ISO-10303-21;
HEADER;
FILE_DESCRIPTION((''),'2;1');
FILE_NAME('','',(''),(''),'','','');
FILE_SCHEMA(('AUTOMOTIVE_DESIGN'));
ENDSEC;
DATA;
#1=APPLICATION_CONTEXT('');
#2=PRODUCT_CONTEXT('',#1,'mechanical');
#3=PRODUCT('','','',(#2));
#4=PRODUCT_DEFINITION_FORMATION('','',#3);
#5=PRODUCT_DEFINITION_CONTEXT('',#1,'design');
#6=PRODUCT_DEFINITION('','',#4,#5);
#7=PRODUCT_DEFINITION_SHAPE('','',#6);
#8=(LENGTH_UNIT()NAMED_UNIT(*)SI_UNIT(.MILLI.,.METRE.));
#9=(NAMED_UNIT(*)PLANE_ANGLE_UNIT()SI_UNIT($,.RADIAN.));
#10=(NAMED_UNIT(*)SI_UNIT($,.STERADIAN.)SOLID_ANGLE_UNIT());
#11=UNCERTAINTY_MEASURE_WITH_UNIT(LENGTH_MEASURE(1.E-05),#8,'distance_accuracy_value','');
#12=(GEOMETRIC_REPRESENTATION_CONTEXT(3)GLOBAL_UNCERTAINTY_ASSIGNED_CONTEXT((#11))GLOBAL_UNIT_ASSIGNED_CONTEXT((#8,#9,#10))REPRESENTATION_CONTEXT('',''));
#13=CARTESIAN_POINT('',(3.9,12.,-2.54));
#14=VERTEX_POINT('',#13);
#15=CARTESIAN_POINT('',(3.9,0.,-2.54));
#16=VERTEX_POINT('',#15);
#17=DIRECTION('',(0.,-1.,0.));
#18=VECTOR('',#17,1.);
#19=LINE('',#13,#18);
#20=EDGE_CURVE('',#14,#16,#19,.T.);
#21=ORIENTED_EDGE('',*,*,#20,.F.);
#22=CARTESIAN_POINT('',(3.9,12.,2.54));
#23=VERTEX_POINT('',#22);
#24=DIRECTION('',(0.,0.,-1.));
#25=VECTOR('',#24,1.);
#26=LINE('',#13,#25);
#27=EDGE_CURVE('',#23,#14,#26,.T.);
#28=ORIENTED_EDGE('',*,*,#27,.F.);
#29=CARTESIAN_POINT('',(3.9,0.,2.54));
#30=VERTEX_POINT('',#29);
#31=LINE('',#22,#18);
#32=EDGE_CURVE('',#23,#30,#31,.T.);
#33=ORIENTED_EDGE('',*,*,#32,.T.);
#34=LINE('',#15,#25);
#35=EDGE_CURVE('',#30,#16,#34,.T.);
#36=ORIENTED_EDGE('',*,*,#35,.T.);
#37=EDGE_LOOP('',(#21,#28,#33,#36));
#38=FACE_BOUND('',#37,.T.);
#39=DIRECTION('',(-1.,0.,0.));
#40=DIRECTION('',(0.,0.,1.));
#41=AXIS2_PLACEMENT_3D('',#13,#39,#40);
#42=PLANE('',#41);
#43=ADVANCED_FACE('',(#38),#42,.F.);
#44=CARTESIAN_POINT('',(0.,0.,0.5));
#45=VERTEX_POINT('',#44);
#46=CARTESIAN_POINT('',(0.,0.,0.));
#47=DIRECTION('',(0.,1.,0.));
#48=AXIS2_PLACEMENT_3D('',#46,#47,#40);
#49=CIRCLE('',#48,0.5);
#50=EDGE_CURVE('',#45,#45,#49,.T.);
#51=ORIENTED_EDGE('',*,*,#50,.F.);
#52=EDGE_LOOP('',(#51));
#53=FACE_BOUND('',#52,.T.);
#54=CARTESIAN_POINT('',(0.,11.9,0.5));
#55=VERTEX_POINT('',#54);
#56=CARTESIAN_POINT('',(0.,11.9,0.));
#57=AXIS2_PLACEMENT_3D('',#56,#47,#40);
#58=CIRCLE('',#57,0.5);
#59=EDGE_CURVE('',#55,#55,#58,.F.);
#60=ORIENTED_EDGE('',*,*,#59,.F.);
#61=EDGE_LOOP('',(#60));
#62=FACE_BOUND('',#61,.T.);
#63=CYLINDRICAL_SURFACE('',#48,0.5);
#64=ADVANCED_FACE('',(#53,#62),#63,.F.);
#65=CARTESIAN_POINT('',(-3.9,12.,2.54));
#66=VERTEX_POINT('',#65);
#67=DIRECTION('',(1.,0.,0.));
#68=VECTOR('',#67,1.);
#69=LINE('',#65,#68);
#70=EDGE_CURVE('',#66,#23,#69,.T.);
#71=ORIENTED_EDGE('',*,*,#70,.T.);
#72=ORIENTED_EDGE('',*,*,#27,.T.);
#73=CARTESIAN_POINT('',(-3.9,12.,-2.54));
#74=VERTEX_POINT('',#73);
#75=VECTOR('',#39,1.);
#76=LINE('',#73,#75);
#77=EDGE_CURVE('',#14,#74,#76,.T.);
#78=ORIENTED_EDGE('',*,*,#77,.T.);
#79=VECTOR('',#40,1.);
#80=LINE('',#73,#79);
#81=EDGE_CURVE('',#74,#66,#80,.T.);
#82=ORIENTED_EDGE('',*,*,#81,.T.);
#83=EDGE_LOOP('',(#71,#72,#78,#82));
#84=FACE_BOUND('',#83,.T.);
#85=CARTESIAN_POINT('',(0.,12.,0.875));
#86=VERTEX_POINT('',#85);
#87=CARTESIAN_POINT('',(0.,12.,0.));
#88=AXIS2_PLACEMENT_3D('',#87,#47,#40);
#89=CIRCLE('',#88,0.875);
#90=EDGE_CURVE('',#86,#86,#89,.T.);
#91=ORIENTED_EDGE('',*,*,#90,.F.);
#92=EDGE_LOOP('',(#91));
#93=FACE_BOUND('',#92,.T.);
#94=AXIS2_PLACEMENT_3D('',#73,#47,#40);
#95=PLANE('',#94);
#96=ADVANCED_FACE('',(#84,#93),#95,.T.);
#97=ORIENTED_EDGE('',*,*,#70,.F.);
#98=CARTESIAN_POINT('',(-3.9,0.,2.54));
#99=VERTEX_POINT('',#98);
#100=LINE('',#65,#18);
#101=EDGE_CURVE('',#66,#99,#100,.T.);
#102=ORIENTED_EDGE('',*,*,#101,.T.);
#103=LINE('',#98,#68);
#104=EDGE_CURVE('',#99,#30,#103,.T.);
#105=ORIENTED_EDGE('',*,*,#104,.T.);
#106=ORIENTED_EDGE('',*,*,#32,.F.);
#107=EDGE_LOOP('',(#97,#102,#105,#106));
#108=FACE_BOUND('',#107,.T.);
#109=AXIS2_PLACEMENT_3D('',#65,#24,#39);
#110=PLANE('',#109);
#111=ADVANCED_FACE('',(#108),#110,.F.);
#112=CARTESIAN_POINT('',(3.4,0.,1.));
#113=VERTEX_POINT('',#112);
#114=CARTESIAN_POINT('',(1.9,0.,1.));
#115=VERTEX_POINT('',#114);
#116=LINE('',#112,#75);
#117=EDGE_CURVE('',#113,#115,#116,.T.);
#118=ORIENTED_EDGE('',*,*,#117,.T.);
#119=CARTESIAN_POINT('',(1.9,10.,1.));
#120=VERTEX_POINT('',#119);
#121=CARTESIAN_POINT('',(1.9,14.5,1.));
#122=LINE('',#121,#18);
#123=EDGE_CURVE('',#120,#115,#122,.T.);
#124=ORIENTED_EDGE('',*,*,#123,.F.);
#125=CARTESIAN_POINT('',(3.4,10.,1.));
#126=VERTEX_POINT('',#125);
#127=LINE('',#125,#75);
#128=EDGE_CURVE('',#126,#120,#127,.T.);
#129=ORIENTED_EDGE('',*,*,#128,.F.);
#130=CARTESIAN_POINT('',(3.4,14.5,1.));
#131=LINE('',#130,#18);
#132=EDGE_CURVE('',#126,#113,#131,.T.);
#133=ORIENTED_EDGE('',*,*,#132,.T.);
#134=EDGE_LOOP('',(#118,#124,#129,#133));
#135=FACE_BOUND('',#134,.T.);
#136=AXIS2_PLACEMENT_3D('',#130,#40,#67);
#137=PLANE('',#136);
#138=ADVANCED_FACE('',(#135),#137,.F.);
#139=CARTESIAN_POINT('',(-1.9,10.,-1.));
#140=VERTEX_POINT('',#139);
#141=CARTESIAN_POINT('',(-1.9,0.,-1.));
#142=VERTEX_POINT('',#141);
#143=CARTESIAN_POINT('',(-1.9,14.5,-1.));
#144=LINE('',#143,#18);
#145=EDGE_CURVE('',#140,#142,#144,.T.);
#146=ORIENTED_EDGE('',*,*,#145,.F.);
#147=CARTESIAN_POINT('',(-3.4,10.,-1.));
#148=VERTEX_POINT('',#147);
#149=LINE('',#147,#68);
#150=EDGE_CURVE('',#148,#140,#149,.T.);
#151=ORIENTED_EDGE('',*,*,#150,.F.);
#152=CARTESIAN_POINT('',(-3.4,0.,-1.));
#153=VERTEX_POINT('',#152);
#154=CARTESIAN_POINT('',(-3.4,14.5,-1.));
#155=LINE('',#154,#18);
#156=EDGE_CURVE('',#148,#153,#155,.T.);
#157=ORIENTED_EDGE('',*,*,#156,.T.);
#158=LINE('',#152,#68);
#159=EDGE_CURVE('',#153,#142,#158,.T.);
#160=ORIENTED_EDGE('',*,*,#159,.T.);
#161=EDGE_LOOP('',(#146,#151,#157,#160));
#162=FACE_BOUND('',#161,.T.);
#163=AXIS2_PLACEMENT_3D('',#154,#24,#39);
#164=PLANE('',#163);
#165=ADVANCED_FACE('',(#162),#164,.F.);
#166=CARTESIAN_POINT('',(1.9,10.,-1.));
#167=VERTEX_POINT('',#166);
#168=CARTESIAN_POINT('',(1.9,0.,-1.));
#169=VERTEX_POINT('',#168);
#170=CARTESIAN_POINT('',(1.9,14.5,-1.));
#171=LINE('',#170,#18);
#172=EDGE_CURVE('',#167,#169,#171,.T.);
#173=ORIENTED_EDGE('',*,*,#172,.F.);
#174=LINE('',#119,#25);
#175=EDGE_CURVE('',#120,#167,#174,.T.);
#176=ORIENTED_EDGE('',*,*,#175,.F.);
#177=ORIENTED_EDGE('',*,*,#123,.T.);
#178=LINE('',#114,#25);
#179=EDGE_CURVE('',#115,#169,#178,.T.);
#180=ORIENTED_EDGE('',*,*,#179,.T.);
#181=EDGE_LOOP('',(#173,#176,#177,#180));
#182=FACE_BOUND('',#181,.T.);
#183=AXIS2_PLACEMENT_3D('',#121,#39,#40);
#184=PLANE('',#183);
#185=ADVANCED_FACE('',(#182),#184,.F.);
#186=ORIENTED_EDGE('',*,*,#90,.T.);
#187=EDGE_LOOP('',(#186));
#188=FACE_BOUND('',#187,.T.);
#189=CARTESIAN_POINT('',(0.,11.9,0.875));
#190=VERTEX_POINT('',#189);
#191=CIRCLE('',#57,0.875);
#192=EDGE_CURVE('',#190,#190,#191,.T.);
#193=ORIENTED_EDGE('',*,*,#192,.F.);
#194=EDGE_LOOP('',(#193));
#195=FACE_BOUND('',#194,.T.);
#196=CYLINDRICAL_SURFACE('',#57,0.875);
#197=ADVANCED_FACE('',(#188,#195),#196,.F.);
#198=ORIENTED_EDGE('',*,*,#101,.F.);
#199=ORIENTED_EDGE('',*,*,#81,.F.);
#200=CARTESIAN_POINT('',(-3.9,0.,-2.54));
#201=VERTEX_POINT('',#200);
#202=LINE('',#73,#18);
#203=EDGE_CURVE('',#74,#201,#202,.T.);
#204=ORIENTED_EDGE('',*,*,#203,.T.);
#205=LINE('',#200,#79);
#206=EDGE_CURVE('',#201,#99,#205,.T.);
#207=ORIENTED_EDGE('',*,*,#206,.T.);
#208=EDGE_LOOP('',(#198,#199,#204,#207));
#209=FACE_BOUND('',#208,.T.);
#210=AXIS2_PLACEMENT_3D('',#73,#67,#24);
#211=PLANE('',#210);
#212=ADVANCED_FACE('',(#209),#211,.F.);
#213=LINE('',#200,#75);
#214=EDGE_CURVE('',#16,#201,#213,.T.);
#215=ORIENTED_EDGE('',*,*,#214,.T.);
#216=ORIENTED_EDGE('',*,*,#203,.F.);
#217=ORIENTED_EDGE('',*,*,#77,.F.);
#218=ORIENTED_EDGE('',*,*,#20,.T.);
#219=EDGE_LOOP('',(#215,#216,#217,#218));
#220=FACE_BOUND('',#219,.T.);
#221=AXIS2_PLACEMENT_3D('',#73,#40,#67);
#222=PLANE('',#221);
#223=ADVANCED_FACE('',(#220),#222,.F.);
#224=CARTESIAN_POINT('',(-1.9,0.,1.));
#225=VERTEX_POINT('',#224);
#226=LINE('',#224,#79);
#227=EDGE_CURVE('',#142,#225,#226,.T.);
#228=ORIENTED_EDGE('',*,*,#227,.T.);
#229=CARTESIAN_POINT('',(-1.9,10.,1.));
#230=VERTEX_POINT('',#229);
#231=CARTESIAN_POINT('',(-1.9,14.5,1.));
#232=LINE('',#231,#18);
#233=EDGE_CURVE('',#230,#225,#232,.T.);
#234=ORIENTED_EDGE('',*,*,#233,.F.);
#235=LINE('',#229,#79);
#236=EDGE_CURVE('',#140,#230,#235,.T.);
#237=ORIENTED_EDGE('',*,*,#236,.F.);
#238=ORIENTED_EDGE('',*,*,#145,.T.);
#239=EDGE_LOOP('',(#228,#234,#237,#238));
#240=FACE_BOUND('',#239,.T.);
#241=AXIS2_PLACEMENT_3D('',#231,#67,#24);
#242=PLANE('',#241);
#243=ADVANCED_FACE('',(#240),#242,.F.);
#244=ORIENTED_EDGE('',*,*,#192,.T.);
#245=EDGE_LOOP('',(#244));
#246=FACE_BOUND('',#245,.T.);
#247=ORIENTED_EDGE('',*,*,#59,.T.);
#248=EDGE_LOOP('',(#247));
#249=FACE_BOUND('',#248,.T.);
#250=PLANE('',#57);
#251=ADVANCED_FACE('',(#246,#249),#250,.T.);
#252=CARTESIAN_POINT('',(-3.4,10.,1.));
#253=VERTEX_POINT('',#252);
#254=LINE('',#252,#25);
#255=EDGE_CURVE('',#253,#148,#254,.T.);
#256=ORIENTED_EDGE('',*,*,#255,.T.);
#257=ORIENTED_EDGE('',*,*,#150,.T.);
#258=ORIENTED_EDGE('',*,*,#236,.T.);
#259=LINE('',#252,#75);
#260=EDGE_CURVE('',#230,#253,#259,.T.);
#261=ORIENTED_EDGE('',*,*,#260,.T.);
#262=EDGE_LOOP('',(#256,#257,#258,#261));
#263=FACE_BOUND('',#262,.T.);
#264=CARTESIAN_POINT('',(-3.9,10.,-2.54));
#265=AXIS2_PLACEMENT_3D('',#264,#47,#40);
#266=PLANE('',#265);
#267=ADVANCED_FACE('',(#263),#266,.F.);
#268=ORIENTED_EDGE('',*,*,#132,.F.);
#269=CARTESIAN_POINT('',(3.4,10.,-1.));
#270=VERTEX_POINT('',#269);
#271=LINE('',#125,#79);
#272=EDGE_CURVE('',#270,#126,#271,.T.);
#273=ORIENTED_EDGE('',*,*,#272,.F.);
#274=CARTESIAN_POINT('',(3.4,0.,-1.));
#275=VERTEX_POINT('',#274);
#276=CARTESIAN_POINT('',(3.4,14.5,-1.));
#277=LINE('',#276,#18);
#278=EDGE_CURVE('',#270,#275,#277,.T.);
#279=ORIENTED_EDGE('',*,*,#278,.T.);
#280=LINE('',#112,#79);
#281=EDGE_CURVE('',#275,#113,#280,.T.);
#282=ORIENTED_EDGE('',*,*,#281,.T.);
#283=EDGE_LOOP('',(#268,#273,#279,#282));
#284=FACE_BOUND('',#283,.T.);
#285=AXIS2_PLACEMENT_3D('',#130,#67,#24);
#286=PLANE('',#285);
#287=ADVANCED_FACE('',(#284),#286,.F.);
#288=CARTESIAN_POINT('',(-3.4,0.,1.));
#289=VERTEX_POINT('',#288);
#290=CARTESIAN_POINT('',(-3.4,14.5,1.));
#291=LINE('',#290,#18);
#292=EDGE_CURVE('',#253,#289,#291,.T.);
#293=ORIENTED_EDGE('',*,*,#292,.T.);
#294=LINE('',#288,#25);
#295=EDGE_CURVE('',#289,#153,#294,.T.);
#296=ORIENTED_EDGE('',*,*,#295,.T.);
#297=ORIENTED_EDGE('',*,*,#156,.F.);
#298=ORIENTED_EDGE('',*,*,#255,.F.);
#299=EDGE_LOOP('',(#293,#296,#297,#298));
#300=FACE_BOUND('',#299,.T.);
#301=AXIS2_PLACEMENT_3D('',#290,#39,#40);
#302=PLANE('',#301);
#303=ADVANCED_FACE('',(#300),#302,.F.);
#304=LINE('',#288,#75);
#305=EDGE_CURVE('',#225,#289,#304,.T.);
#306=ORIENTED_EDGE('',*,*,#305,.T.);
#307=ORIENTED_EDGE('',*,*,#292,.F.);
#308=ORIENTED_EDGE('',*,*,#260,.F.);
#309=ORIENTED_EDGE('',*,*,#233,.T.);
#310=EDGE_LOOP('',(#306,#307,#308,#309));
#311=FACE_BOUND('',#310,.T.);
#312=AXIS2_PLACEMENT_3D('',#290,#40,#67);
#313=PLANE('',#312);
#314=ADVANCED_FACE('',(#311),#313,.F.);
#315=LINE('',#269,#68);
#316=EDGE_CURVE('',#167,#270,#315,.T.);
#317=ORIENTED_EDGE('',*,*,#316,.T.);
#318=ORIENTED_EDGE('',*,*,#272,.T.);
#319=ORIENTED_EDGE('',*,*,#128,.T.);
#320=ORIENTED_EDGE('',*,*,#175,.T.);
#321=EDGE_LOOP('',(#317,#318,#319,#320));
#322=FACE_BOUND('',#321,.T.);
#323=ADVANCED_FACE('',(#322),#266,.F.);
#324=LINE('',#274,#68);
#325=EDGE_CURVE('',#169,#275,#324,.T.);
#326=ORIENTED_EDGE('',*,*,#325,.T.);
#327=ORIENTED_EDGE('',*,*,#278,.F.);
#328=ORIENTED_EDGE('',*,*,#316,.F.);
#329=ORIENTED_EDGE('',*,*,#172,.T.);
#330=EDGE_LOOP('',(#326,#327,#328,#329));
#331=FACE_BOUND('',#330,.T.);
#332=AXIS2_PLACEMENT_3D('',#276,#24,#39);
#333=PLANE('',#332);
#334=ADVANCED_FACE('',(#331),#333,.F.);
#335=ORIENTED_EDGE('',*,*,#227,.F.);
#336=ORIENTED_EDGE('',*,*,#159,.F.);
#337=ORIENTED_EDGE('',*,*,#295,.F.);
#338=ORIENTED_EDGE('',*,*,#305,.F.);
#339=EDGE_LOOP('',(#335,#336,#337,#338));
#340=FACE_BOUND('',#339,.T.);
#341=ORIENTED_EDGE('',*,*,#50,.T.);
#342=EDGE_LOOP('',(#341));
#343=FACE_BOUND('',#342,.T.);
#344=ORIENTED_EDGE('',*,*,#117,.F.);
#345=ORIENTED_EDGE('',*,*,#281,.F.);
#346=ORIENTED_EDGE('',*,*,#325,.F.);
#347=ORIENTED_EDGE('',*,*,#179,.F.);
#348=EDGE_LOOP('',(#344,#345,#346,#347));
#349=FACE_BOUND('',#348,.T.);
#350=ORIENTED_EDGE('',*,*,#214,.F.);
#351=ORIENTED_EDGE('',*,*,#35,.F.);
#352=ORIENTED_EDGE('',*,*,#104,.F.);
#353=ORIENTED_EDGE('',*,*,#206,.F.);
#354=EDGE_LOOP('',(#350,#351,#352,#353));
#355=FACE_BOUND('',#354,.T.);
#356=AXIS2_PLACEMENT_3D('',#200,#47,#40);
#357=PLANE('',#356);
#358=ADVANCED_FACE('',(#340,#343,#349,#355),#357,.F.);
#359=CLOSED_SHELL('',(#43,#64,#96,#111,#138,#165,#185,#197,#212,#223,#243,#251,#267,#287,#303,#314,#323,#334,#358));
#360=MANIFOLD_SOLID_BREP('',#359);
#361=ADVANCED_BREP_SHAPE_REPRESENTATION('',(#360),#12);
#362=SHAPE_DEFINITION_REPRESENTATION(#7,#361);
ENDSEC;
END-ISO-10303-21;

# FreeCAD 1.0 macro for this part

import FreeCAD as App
import Part
import Sketcher


def add_polygon(sketch, points):
    """Adds a closed chain of lines whose ends are joined by coincident constraints."""
    first, n = sketch.GeometryCount, len(points)
    for a, b in zip(points, points[1:] + points[:1]):
        sketch.addGeometry(Part.LineSegment(App.Vector(*a, 0), App.Vector(*b, 0)), False)
    for i in range(n):
        sketch.addConstraint(Sketcher.Constraint("Coincident", first + i, 2, first + (i + 1) % n, 1))

doc = App.newDocument("Part")
body = doc.addObject("PartDesign::Body", "Body")

# Sketch on XZ plane
sketch1 = doc.addObject("Sketcher::SketchObject", "Sketch")
body.addObject(sketch1)
sketch1.AttachmentSupport = (doc.XZ_Plane, [""])
sketch1.MapMode = "FlatFace"
add_polygon(sketch1, [(-4, -3), (-4, 3), (4, 3), (4, -3)])  # lines 0-3
sketch1.addConstraint(Sketcher.Constraint("Vertical", 0))
sketch1.addConstraint(Sketcher.Constraint("Horizontal", 1))
sketch1.addConstraint(Sketcher.Constraint("Vertical", 2))
sketch1.addConstraint(Sketcher.Constraint("Horizontal", 3))
sketch1.addConstraint(Sketcher.Constraint("Symmetric", 0, 2, 2, 2, -1, 1))
sketch1.addConstraint(Sketcher.Constraint("DistanceX", 1, 1, 1, 2, 7.8))
sketch1.addConstraint(Sketcher.Constraint("DistanceY", 0, 1, 0, 2, 5.08))
pad1 = doc.addObject("PartDesign::Pad", "Pad")
body.addObject(pad1)
pad1.Profile = sketch1
pad1.Length = 12
pad1.Reversed = True

# Sketch on XZ plane
sketch2 = doc.addObject("Sketcher::SketchObject", "Sketch001")
body.addObject(sketch2)
sketch2.AttachmentSupport = (doc.XZ_Plane, [""])
sketch2.MapMode = "FlatFace"
sketch2.AttachmentOffset = App.Placement(App.Vector(0, 0, -12), App.Rotation())
sketch2.addGeometry(Part.Circle(App.Vector(0, 0, 0), App.Vector(0, 0, 1), 0.5), False)
sketch2.addConstraint(Sketcher.Constraint("Coincident", 0, 3, -1, 1))
sketch2.addConstraint(Sketcher.Constraint("Diameter", 0, 1.0))
pocket1 = doc.addObject("PartDesign::Pocket", "Pocket")
body.addObject(pocket1)
pocket1.Profile = sketch2
pocket1.Length = 12
pocket1.Reversed = True

# Sketch on XZ plane
sketch3 = doc.addObject("Sketcher::SketchObject", "Sketch002")
body.addObject(sketch3)
sketch3.AttachmentSupport = (doc.XZ_Plane, [""])
sketch3.MapMode = "FlatFace"
sketch3.AttachmentOffset = App.Placement(App.Vector(0, 0, -12), App.Rotation())
sketch3.addGeometry(Part.Circle(App.Vector(0, 0, 0), App.Vector(0, 0, 1), 0.9), False)
sketch3.addConstraint(Sketcher.Constraint("Coincident", 0, 3, -1, 1))
sketch3.addConstraint(Sketcher.Constraint("Diameter", 0, 1.75))
pocket2 = doc.addObject("PartDesign::Pocket", "Pocket001")
body.addObject(pocket2)
pocket2.Profile = sketch3
pocket2.Length = 0.1
pocket2.Reversed = True

# Sketch on XZ plane
sketch4 = doc.addObject("Sketcher::SketchObject", "Sketch003")
body.addObject(sketch4)
sketch4.AttachmentSupport = (doc.XZ_Plane, [""])
sketch4.MapMode = "FlatFace"
sketch4.AttachmentOffset = App.Placement(App.Vector(0, 0, -10), App.Rotation())
add_polygon(sketch4, [(-3.4, 1), (-3.4, -1), (-1.9, -1), (-1.9, 1)])  # lines 0-3
add_polygon(sketch4, [(1.9, 1), (1.9, -1), (3.4, -1), (3.4, 1)])  # lines 4-7
sketch4.addConstraint(Sketcher.Constraint("Vertical", 0))
sketch4.addConstraint(Sketcher.Constraint("Horizontal", 1))
sketch4.addConstraint(Sketcher.Constraint("Vertical", 2))
sketch4.addConstraint(Sketcher.Constraint("Horizontal", 3))
sketch4.addConstraint(Sketcher.Constraint("Vertical", 4))
sketch4.addConstraint(Sketcher.Constraint("Horizontal", 5))
sketch4.addConstraint(Sketcher.Constraint("Vertical", 6))
sketch4.addConstraint(Sketcher.Constraint("Horizontal", 7))
sketch4.addConstraint(Sketcher.Constraint("Symmetric", 2, 2, 4, 2, -1, 1))
sketch4.addConstraint(Sketcher.Constraint("Symmetric", 0, 2, 6, 2, -1, 1))
sketch4.addConstraint(Sketcher.Constraint("Horizontal", 1, 2, 4, 2))
sketch4.addConstraint(Sketcher.Constraint("DistanceY", 0, 2, 0, 1, 2.0))
sketch4.addConstraint(Sketcher.Constraint("DistanceX", 1, 1, 1, 2, 1.5))
sketch4.addConstraint(Sketcher.Constraint("DistanceX", 0, 2, -1, 1, 3.4))
pocket3 = doc.addObject("PartDesign::Pocket", "Pocket002")
body.addObject(pocket3)
pocket3.Profile = sketch4
pocket3.Length = 10
pocket3.Reversed = True

doc.recompute()
